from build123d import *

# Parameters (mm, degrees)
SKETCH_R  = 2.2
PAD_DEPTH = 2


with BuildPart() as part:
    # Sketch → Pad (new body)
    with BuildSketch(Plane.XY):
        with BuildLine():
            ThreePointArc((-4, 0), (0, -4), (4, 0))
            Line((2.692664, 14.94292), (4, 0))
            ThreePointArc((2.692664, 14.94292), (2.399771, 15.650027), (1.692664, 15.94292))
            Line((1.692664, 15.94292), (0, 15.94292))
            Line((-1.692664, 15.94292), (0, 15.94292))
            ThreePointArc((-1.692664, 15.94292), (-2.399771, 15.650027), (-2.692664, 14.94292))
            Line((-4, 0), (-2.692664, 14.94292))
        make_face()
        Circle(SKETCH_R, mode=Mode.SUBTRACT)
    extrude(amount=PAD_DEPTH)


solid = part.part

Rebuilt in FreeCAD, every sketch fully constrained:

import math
import FreeCAD as App
import Part
import Sketcher
Q = App.Units.Quantity

doc = App.newDocument("Part")
body = doc.addObject("PartDesign::Body", "Body")

# Sketch on XY plane
sketch1 = body.newObject("Sketcher::SketchObject", "Sketch")
sketch1.AttachmentSupport = (doc.getObject("XY_Plane"), [""])
sketch1.MapMode = "FlatFace"
sketch1.addGeometry(Part.ArcOfCircle(Part.Circle(App.Vector(0, 0, 0), App.Vector(0, 0, 1), 4), math.radians(180), math.radians(360)), False)
sketch1.addGeometry(Part.LineSegment(App.Vector(4, 0, 0), App.Vector(2.7, 14.9, 0)), False)
sketch1.addGeometry(Part.ArcOfCircle(Part.Circle(App.Vector(1.7, 14.9, 0), App.Vector(0, 0, 1), 1), math.radians(0), math.radians(90)), False)
sketch1.addGeometry(Part.LineSegment(App.Vector(1.7, 15.9, 0), App.Vector(-1.7, 15.9, 0)), False)
sketch1.addGeometry(Part.ArcOfCircle(Part.Circle(App.Vector(-1.7, 14.9, 0), App.Vector(0, 0, 1), 1), math.radians(90), math.radians(180)), False)
sketch1.addGeometry(Part.LineSegment(App.Vector(-2.7, 14.9, 0), App.Vector(-4, 0, 0)), False)
sketch1.addGeometry(Part.Circle(App.Vector(0, 0, 0), App.Vector(0, 0, 1), 2.2), False)
sketch1.addConstraint(Sketcher.Constraint("Coincident", 0, 2, 1, 1))
sketch1.addConstraint(Sketcher.Constraint("Coincident", 1, 2, 2, 1))
sketch1.addConstraint(Sketcher.Constraint("Tangent", 2, 2, 3, 1))
sketch1.addConstraint(Sketcher.Constraint("Tangent", 3, 2, 4, 1))
sketch1.addConstraint(Sketcher.Constraint("Coincident", 4, 2, 5, 1))
sketch1.addConstraint(Sketcher.Constraint("Coincident", 5, 2, 0, 1))
sketch1.addConstraint(Sketcher.Constraint("Horizontal", 3))
sketch1.addConstraint(Sketcher.Constraint("Coincident", 0, 3, -1, 1))
sketch1.addConstraint(Sketcher.Constraint("Coincident", 6, 3, -1, 1))
sketch1.addConstraint(Sketcher.Constraint("Equal", 2, 4))
sketch1.addConstraint(Sketcher.Constraint("Symmetric", 1, 2, 4, 2, -2))
sketch1.addConstraint(Sketcher.Constraint("PointOnObject", 0, 2, -1))
sketch1.addConstraint(Sketcher.Constraint("PointOnObject", 5, 2, -1))
sketch1.addConstraint(Sketcher.Constraint("Horizontal", 4, 3, 1, 2))
sketch1.addConstraint(Sketcher.Constraint("Radius", 0, 4.0))
sketch1.addConstraint(Sketcher.Constraint("Radius", 2, 0.999999))
sketch1.addConstraint(Sketcher.Constraint("Diameter", 6, 4.4))
sketch1.addConstraint(Sketcher.Constraint("Angle", 1, Q("95 deg")))
sketch1.addConstraint(Sketcher.Constraint("Distance", 1, 15.0))
pad1 = body.newObject("PartDesign::Pad", "Pad")
pad1.Profile = sketch1
pad1.Length = 2

doc.recompute()
